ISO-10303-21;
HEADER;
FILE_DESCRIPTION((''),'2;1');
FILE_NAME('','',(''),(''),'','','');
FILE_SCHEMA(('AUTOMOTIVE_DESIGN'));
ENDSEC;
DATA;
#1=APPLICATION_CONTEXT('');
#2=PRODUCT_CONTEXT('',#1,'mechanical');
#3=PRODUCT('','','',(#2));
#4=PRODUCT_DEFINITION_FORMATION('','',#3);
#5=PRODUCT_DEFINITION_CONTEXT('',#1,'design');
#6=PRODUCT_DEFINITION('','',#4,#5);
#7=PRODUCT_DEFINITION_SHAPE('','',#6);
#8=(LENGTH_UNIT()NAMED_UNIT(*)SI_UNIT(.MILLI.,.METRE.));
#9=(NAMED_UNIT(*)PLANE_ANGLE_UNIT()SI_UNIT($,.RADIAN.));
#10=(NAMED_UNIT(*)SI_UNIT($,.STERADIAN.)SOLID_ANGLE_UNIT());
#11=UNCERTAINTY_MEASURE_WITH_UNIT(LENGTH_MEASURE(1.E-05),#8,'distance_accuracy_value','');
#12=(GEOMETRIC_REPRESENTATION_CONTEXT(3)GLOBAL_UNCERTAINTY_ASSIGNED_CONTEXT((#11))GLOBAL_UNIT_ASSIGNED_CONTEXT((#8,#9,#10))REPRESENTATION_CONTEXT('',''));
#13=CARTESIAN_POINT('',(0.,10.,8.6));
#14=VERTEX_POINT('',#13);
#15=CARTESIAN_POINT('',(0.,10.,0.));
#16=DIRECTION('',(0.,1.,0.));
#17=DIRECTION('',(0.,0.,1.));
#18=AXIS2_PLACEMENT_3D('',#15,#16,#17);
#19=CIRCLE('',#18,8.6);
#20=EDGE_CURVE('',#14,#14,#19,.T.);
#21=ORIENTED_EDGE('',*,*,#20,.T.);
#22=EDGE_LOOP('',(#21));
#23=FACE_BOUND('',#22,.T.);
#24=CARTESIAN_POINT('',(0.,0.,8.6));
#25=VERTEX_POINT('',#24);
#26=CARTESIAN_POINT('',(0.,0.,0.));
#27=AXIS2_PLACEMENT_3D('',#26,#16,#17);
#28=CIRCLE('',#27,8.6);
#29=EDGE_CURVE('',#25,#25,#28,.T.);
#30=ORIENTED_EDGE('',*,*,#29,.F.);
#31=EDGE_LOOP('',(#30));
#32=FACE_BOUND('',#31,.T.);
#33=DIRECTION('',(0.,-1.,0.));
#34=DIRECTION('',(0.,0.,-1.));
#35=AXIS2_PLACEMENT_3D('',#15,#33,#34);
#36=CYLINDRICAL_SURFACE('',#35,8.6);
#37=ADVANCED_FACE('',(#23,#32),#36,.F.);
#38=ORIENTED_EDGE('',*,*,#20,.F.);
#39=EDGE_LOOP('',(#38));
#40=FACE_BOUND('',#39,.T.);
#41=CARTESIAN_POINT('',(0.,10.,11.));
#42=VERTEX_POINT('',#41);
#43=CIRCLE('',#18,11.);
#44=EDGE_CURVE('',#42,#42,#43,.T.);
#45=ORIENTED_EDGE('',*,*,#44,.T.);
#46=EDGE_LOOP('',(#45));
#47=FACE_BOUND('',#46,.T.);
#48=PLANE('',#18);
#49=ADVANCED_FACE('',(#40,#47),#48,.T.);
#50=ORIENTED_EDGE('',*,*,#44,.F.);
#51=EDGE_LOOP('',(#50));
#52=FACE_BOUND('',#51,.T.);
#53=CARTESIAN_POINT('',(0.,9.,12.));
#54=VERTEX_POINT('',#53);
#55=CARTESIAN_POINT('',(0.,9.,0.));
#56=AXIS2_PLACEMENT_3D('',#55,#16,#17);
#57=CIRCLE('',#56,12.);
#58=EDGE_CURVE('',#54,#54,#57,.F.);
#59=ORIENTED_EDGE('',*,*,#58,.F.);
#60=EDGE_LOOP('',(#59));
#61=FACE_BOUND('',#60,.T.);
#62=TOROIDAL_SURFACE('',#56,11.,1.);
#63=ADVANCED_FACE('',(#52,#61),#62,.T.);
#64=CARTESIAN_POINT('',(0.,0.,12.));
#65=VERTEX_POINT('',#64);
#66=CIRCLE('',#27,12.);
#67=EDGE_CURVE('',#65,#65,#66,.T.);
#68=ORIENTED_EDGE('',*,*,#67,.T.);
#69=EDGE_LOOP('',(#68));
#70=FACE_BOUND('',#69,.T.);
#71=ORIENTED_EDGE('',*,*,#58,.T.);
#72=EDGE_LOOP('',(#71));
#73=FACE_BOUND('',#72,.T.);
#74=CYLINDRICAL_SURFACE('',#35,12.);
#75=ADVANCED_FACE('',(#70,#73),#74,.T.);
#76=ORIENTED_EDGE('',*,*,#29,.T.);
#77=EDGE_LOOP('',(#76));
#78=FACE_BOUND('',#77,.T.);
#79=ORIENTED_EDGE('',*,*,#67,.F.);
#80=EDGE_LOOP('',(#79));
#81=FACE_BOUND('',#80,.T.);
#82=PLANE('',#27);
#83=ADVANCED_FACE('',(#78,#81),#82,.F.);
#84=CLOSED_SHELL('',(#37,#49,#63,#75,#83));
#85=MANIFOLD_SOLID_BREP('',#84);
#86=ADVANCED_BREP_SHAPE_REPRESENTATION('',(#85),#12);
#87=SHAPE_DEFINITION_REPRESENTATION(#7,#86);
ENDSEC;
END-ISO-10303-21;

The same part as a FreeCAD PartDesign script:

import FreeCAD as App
import Part
import Sketcher
Q = App.Units.Quantity


def edges_at(feature, points):
    """Names of the edges that pass closest to the given points."""
    edges = feature.Shape.Edges
    near = lambda p: min(range(len(edges)), key=lambda i: edges[i].distToShape(Part.Vertex(*p))[0])
    return sorted({f"Edge{near(p) + 1}" for p in points})

doc = App.newDocument("Part")
body = doc.addObject("PartDesign::Body", "Body")

# Sketch on XZ plane
sketch1 = body.newObject("Sketcher::SketchObject", "Sketch")
sketch1.AttachmentSupport = (doc.getObject("XZ_Plane"), [""])
sketch1.MapMode = "FlatFace"
sketch1.addGeometry(Part.Circle(App.Vector(0, 0, 0), App.Vector(0, 0, 1), 12), False)
sketch1.addGeometry(Part.Circle(App.Vector(0, 0, 0), App.Vector(0, 0, 1), 9), False)
sketch1.addConstraint(Sketcher.Constraint("Coincident", 0, 3, -1, 1))
sketch1.addConstraint(Sketcher.Constraint("Coincident", 1, 3, -1, 1))
sketch1.addConstraint(Sketcher.Constraint("Diameter", 0, Q("24 mm")))
sketch1.addConstraint(Sketcher.Constraint("Diameter", 1, Q("17.2 mm")))
pad1 = body.newObject("PartDesign::Pad", "Pad")
pad1.Profile = sketch1
pad1.Length = 10
pad1.Reversed = True
doc.recompute()

fillet = body.newObject("PartDesign::Fillet", "Fillet")
fillet.Base = (pad1, edges_at(pad1, [(-12, 10, 0)]))
fillet.Radius = 1

doc.recompute()
